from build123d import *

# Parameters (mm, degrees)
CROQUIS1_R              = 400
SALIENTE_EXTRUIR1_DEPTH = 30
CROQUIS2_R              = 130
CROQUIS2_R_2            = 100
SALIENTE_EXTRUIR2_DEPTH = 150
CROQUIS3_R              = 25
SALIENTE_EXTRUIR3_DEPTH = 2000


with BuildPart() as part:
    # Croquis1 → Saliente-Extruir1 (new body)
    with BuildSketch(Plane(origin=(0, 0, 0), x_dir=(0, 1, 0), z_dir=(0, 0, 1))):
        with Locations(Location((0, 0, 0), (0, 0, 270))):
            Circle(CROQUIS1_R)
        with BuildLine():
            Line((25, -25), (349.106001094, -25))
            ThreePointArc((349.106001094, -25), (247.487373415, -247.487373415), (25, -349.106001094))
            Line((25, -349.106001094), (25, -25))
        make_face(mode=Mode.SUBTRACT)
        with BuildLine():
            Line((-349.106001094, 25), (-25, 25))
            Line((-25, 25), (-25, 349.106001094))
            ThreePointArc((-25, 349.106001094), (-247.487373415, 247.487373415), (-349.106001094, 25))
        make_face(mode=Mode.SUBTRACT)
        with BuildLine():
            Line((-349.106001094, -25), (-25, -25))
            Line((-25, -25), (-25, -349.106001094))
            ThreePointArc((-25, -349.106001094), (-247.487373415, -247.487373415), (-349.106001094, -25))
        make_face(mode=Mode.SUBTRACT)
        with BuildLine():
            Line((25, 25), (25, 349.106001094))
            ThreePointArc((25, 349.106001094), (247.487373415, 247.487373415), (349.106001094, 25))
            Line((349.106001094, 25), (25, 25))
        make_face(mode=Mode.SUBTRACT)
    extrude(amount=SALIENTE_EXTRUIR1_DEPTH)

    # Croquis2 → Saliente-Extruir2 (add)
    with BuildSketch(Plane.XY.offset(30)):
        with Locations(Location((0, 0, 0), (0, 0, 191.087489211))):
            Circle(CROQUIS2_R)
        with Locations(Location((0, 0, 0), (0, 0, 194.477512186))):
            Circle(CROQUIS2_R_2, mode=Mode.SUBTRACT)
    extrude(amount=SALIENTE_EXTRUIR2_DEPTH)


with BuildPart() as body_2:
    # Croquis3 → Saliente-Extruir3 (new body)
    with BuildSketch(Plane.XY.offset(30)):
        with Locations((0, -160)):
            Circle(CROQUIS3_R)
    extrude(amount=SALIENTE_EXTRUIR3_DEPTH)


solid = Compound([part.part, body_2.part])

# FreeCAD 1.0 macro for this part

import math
import FreeCAD as App
import Part
import Sketcher
from FreeCAD import Vector
Q = App.Units.Quantity

doc = App.newDocument("Part")
body = doc.addObject("PartDesign::Body", "Body")

sketch1 = body.newObject("Sketcher::SketchObject", "Sketch")
sketch1.AttachmentSupport = (doc.getObject("XY_Plane"), [""])
sketch1.MapMode = "FlatFace"
sketch1.addGeometry([
    Part.Circle(Vector(0, 0, 0), Vector(0, 0, 1), 400),
    Part.LineSegment(Vector(-25, -25, 0), Vector(-25, -349, 0)),
    Part.ArcOfCircle(Part.Circle(Vector(0, 0, 0), Vector(0, 0, 1), 350), math.radians(-176), math.radians(-94)),
    Part.LineSegment(Vector(-349, -25, 0), Vector(-25, -25, 0)),
    Part.ArcOfCircle(Part.Circle(Vector(0, 0, 0), Vector(0, 0, 1), 350), math.radians(-86), math.radians(-4)),
    Part.LineSegment(Vector(25, -349, 0), Vector(25, -25, 0)),
    Part.LineSegment(Vector(25, -25, 0), Vector(349, -25, 0)),
    Part.LineSegment(Vector(-25, 349, 0), Vector(-25, 25, 0)),
    Part.LineSegment(Vector(-25, 25, 0), Vector(-349, 25, 0)),
    Part.ArcOfCircle(Part.Circle(Vector(0, 0, 0), Vector(0, 0, 1), 350), math.radians(94), math.radians(176)),
    Part.LineSegment(Vector(349, 25, 0), Vector(25, 25, 0)),
    Part.LineSegment(Vector(25, 25, 0), Vector(25, 349, 0)),
    Part.ArcOfCircle(Part.Circle(Vector(0, 0, 0), Vector(0, 0, 1), 350), math.radians(4), math.radians(86)),
], False)
sketch1.addConstraint([
    Sketcher.Constraint("Coincident", 1, 2, 2, 2),
    Sketcher.Constraint("Coincident", 2, 1, 3, 1),
    Sketcher.Constraint("Coincident", 3, 2, 1, 1),
    Sketcher.Constraint("Coincident", 4, 1, 5, 1),
    Sketcher.Constraint("Coincident", 5, 2, 6, 1),
    Sketcher.Constraint("Coincident", 6, 2, 4, 2),
    Sketcher.Constraint("Coincident", 7, 2, 8, 1),
    Sketcher.Constraint("Coincident", 8, 2, 9, 2),
    Sketcher.Constraint("Coincident", 9, 1, 7, 1),
    Sketcher.Constraint("Coincident", 10, 2, 11, 1),
    Sketcher.Constraint("Coincident", 11, 2, 12, 2),
    Sketcher.Constraint("Coincident", 12, 1, 10, 1),
    Sketcher.Constraint("Vertical", 1),
    Sketcher.Constraint("Horizontal", 3),
    Sketcher.Constraint("Vertical", 5),
    Sketcher.Constraint("Horizontal", 6),
    Sketcher.Constraint("Vertical", 7),
    Sketcher.Constraint("Horizontal", 8),
    Sketcher.Constraint("Horizontal", 10),
    Sketcher.Constraint("Vertical", 11),
    Sketcher.Constraint("Coincident", 0, 3, -1, 1),
    Sketcher.Constraint("Coincident", 2, 3, -1, 1),
    Sketcher.Constraint("Coincident", 4, 3, -1, 1),
    Sketcher.Constraint("Coincident", 9, 3, -1, 1),
    Sketcher.Constraint("Coincident", 12, 3, -1, 1),
    Sketcher.Constraint("Equal", 2, 4),
    Sketcher.Constraint("Equal", 4, 9),
    Sketcher.Constraint("Equal", 9, 12),
    Sketcher.Constraint("Symmetric", 5, 2, 7, 2, -1, 1),
    Sketcher.Constraint("Symmetric", 3, 2, 10, 2, -1, 1),
    Sketcher.Constraint("Symmetric", 3, 2, 5, 2, -2),
    Sketcher.Constraint("Equal", 10, 1),
    Sketcher.Constraint("Diameter", 0, Q("800 mm")),
    Sketcher.Constraint("Radius", 2, Q("350 mm")),
    Sketcher.Constraint("DistanceX", 1, 2, -1, 1, Q("25 mm")),
])
pad1 = body.newObject("PartDesign::Pad", "Pad")
pad1.Profile = sketch1
pad1.Length = 30

sketch2 = body.newObject("Sketcher::SketchObject", "Sketch001")
sketch2.AttachmentSupport = (doc.getObject("XY_Plane"), [""])
sketch2.MapMode = "FlatFace"
sketch2.AttachmentOffset = App.Placement(Vector(0, 0, 30), App.Rotation())
sketch2.addGeometry([
    Part.Circle(Vector(0, 0, 0), Vector(0, 0, 1), 130),
    Part.Circle(Vector(0, 0, 0), Vector(0, 0, 1), 100),
], False)
sketch2.addConstraint([
    Sketcher.Constraint("Coincident", 0, 3, -1, 1),
    Sketcher.Constraint("Coincident", 1, 3, -1, 1),
    Sketcher.Constraint("Diameter", 0, Q("260 mm")),
    Sketcher.Constraint("Diameter", 1, Q("200 mm")),
])
pad2 = body.newObject("PartDesign::Pad", "Pad001")
pad2.Profile = sketch2
pad2.Length = 150
body2 = doc.addObject("PartDesign::Body", "Body001")

sketch3 = body2.newObject("Sketcher::SketchObject", "Sketch002")
sketch3.AttachmentSupport = (doc.getObject("XY_Plane001"), [""])
sketch3.MapMode = "FlatFace"
sketch3.AttachmentOffset = App.Placement(Vector(0, 0, 30), App.Rotation())
sketch3.addGeometry(Part.Circle(Vector(0, -160, 0), Vector(0, 0, 1), 25), False)
sketch3.addConstraint([
    Sketcher.Constraint("PointOnObject", 0, 3, -2),
    Sketcher.Constraint("Diameter", 0, Q("50 mm")),
    Sketcher.Constraint("DistanceY", 0, 3, -1, 1, Q("160 mm")),
])
pad3 = body2.newObject("PartDesign::Pad", "Pad002")
pad3.Profile = sketch3
pad3.Length = 2000

doc.recompute()
